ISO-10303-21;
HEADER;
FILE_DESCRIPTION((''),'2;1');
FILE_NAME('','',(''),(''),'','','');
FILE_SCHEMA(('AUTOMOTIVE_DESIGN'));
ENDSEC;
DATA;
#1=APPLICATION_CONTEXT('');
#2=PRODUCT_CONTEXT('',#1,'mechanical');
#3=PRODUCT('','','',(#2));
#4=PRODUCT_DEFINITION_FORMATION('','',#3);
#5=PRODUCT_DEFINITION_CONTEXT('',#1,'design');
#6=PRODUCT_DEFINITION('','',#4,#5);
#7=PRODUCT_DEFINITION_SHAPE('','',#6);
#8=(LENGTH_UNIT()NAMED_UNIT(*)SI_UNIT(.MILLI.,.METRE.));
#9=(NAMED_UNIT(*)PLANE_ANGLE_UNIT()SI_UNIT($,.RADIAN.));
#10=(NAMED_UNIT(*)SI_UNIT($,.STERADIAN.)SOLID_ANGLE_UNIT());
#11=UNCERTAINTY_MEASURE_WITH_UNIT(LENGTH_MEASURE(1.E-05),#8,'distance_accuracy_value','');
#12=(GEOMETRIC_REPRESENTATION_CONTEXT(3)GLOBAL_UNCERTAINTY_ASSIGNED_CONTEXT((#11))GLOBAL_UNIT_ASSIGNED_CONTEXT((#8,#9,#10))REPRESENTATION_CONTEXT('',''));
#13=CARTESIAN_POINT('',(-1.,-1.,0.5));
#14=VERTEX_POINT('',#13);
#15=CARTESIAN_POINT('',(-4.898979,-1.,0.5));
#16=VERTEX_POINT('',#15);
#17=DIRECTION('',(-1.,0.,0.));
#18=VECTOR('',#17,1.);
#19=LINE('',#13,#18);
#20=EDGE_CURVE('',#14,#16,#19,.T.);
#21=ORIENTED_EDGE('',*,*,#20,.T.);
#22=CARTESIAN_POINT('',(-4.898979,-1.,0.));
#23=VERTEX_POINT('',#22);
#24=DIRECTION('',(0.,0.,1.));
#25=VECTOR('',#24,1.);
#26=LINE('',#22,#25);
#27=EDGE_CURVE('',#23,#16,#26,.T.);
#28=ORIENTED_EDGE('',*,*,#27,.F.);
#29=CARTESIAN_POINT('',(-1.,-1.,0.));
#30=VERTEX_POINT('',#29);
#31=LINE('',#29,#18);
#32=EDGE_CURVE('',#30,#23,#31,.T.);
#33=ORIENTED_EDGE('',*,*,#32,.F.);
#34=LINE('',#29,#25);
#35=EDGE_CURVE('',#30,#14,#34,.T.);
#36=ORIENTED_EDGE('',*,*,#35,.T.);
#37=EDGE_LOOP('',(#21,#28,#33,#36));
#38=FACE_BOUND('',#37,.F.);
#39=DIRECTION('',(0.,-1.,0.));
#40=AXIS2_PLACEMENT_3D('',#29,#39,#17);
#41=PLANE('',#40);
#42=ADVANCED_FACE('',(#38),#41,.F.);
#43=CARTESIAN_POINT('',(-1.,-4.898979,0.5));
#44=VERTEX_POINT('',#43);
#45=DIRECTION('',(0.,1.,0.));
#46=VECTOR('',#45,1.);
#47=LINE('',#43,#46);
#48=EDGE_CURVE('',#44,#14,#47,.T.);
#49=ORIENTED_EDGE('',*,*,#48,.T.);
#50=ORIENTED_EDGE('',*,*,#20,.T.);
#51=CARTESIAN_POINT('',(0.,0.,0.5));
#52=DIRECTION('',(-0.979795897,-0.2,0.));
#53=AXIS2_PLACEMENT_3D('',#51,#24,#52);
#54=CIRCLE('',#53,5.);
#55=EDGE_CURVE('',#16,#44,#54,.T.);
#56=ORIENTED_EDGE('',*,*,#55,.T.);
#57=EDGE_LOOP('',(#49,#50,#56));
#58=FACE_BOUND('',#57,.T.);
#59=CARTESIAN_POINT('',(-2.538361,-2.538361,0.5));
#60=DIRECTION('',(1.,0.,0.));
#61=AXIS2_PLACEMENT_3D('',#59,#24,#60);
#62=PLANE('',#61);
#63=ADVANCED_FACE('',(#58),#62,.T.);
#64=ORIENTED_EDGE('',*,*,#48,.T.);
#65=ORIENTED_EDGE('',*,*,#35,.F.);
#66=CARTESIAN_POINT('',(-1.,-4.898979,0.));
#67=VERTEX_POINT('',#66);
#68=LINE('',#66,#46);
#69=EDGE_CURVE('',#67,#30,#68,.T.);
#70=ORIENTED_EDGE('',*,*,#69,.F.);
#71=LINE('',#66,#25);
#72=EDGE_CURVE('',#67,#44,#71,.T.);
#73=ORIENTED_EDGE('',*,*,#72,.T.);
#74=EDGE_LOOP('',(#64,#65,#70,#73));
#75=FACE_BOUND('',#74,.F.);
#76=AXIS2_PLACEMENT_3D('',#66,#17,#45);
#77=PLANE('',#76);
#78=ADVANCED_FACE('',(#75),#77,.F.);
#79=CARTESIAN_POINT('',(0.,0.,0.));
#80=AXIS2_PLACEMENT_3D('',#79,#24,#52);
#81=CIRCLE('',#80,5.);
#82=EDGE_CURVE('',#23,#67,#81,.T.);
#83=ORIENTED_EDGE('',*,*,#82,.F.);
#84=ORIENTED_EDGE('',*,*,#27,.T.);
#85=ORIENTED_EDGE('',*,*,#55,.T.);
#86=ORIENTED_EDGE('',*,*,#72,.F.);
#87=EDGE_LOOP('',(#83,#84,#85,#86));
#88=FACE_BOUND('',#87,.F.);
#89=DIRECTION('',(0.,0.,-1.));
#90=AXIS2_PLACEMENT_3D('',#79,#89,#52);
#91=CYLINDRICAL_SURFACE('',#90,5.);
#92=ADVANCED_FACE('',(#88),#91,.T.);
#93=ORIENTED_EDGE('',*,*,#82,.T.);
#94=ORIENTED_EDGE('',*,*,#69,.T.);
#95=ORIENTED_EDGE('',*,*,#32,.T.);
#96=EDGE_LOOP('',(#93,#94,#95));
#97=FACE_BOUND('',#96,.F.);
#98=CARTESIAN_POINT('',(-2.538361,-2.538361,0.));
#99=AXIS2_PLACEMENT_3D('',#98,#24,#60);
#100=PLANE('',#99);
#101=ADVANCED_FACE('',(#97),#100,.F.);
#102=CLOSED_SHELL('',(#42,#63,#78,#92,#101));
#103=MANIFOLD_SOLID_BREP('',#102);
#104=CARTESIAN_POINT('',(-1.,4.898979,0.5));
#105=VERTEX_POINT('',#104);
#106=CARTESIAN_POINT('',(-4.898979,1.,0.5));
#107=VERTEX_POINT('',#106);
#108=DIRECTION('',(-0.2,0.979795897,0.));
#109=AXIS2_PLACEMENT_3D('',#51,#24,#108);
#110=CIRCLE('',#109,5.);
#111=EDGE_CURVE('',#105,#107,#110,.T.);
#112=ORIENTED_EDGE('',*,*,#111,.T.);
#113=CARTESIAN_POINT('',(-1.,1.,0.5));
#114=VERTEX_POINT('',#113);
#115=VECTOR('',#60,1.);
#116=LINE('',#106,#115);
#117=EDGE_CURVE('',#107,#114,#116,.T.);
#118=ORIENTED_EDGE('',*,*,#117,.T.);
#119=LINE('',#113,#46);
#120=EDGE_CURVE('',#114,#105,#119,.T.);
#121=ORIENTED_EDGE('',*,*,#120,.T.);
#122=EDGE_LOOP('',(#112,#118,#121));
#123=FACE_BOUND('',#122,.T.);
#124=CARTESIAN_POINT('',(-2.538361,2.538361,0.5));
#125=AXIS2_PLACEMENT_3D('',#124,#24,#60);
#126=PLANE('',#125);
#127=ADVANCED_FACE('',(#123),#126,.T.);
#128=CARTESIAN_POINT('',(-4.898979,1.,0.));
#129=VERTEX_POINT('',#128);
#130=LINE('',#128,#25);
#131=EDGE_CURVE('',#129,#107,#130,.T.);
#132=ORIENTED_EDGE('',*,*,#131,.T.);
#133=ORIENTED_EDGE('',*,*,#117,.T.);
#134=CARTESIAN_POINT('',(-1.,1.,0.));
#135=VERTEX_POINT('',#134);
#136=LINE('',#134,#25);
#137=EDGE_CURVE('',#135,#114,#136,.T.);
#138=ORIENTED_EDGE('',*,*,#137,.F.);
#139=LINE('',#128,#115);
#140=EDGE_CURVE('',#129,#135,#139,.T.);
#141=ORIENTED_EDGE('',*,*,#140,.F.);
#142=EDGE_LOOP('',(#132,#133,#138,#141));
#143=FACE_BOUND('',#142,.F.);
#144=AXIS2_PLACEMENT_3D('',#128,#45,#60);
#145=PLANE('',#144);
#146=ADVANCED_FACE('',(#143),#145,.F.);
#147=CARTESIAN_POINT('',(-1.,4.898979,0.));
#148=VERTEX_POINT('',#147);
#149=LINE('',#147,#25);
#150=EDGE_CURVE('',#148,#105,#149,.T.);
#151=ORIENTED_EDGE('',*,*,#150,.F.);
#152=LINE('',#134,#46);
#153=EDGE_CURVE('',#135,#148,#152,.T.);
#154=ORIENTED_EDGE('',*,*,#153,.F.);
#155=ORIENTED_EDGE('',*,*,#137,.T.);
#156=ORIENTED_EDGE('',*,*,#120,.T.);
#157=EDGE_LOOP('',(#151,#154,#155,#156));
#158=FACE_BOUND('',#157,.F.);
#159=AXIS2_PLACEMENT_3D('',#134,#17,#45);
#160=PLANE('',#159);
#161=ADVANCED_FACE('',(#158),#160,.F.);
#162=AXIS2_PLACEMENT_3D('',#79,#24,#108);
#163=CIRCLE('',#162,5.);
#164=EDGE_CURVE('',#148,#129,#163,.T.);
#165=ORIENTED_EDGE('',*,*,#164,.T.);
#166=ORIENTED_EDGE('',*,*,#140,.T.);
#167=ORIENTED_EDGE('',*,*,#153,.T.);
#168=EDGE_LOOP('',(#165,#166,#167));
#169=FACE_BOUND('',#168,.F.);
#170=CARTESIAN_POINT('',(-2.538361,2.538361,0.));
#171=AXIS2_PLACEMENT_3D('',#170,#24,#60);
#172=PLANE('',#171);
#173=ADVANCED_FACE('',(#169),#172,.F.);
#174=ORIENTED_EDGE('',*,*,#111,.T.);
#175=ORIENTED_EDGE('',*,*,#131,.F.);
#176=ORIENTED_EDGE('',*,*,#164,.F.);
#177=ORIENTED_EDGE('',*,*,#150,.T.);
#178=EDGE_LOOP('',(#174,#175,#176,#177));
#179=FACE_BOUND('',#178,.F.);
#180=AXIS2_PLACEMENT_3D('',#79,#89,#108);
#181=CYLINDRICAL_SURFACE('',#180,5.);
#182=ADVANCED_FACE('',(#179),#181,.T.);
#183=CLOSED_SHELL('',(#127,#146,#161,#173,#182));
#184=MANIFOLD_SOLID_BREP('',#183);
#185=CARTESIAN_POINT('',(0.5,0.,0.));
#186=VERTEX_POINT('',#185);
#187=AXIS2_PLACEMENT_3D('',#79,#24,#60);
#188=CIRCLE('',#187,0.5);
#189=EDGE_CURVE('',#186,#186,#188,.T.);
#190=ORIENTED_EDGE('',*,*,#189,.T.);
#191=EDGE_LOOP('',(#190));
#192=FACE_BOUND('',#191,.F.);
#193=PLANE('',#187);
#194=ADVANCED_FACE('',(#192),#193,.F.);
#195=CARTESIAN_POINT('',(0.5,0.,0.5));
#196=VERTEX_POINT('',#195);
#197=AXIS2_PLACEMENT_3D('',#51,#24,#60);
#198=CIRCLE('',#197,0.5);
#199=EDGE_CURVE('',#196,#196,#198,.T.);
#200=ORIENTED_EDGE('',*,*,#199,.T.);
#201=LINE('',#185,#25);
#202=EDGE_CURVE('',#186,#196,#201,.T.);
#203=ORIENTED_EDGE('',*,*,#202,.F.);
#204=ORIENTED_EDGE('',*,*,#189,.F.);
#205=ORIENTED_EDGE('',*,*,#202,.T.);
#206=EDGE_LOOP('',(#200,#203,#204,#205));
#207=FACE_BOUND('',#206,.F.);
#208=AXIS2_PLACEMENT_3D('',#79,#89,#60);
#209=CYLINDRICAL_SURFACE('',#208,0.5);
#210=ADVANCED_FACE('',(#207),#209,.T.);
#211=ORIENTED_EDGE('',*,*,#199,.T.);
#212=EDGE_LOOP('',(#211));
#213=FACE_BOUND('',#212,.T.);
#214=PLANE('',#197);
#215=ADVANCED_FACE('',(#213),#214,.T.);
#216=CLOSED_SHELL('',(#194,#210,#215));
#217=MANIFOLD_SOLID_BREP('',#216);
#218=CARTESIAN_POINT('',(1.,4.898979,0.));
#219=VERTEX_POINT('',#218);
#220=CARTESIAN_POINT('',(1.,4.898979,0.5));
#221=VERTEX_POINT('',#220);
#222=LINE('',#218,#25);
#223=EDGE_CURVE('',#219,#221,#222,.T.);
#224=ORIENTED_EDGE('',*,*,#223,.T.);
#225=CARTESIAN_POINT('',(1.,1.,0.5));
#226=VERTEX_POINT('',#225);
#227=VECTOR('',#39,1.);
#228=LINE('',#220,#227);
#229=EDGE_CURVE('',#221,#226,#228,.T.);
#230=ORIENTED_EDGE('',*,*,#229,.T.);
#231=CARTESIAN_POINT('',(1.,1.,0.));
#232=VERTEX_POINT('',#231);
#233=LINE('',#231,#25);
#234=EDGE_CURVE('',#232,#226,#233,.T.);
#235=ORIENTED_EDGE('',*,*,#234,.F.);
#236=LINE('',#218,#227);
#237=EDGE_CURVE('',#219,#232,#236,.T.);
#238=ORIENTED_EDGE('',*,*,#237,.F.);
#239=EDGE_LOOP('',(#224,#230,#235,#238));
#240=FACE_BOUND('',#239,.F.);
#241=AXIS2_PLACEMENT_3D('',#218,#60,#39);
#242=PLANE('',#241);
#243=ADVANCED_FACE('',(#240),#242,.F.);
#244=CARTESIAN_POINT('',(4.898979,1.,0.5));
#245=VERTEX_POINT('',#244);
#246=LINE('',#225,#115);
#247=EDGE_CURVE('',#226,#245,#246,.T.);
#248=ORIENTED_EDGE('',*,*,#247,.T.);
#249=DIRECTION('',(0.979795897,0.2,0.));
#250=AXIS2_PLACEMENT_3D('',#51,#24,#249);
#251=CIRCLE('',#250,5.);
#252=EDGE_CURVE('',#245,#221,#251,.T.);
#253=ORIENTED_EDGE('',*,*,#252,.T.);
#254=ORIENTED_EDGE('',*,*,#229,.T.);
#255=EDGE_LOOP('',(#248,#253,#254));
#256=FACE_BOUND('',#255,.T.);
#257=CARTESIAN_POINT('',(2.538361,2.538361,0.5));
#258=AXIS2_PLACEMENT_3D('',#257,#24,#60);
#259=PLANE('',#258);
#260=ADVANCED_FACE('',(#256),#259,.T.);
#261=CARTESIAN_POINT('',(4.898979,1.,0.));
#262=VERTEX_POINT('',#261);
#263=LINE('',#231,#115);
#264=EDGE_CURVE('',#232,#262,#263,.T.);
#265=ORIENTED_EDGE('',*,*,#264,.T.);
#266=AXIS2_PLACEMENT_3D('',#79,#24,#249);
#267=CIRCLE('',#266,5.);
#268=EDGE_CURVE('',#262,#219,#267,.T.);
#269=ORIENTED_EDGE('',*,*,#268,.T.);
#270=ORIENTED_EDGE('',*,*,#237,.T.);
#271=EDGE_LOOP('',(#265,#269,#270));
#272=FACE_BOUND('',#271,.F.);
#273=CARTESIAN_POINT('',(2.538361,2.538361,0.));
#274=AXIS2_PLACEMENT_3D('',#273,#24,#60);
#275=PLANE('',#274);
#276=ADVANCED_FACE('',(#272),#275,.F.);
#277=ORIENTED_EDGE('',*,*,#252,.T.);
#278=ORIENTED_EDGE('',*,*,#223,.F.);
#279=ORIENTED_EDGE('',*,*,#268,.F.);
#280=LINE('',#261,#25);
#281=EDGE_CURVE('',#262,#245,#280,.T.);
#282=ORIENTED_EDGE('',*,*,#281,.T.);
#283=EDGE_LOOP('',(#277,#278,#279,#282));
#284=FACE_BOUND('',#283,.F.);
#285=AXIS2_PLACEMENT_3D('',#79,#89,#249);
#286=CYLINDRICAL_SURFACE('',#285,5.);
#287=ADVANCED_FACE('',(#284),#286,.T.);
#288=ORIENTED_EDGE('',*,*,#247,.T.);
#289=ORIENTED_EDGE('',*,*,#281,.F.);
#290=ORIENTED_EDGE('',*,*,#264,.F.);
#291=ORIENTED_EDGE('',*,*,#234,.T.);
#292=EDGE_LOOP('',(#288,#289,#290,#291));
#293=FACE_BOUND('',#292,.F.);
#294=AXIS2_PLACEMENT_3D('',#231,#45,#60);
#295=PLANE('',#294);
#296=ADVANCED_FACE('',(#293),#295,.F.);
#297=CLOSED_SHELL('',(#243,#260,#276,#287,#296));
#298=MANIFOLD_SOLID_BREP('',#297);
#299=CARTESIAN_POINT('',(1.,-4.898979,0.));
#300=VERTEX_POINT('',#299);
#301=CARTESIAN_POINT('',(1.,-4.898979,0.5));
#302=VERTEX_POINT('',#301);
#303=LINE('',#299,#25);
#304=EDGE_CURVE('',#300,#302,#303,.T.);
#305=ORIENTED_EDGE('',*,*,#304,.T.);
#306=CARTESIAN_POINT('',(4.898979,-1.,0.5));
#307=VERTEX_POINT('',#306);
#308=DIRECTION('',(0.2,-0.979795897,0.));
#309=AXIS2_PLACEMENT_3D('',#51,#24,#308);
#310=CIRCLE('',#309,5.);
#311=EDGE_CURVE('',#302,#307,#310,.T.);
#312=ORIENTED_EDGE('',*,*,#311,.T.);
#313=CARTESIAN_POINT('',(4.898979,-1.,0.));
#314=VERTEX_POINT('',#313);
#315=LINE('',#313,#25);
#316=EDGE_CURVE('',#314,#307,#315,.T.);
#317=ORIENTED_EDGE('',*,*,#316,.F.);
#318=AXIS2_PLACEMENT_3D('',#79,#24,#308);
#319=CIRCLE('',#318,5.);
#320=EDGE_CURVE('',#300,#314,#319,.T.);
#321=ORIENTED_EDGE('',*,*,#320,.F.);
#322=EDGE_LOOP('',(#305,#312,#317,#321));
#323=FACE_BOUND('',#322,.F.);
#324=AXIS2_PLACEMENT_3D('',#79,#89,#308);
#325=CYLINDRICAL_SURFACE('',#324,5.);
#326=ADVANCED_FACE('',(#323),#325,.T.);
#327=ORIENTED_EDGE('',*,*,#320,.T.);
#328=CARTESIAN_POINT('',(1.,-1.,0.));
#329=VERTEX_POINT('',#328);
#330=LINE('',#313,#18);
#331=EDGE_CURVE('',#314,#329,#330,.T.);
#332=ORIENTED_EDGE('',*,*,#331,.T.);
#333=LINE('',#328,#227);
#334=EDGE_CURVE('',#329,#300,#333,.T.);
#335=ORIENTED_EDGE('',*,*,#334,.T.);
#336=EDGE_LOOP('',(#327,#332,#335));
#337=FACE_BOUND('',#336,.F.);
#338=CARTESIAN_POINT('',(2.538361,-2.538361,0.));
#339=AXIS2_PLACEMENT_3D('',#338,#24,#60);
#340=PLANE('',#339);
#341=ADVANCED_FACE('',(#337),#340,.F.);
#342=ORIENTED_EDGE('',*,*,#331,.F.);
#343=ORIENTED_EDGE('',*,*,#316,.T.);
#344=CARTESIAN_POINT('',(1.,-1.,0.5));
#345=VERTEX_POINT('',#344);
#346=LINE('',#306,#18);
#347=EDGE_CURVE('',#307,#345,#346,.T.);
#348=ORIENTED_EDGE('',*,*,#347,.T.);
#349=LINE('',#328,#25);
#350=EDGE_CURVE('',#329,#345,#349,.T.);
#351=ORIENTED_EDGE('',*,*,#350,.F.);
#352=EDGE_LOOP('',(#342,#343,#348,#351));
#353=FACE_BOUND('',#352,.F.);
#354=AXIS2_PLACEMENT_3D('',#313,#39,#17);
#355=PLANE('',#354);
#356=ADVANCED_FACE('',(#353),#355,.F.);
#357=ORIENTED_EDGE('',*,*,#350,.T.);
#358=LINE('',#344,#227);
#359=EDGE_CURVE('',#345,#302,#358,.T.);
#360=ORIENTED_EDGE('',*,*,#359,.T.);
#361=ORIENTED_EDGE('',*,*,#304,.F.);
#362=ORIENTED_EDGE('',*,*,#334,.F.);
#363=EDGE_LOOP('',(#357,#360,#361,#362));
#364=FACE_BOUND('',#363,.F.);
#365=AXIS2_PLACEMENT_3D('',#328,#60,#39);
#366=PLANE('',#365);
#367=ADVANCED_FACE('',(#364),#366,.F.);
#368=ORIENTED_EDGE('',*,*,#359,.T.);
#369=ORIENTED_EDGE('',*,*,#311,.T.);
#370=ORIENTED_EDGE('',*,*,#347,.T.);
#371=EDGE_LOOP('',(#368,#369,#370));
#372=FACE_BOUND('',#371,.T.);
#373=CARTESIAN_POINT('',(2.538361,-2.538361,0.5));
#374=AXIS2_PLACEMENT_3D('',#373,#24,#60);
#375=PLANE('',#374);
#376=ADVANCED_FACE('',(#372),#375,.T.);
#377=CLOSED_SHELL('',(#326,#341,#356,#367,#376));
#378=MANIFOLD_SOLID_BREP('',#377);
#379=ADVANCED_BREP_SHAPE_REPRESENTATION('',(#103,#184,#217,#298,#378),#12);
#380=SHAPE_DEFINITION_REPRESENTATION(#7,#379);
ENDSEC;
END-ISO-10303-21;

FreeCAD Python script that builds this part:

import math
import FreeCAD as App
import Part
import Sketcher
Q = App.Units.Quantity

doc = App.newDocument("Part")
body = doc.addObject("PartDesign::Body", "Body")

sketch1 = body.newObject("Sketcher::SketchObject", "Sketch")
sketch1.AttachmentSupport = (doc.getObject("XY_Plane"), [""])
sketch1.MapMode = "FlatFace"
sketch1.addGeometry(Part.Circle(App.Vector(0, 0, 0), App.Vector(0, 0, 1), 0.5), False)
sketch1.addConstraint(Sketcher.Constraint("Coincident", 0, 3, -1, 1))
sketch1.addConstraint(Sketcher.Constraint("Diameter", 0, Q("1 mm")))
pad1 = body.newObject("PartDesign::Pad", "Pad")
pad1.Profile = sketch1
pad1.Length = 0.5
body2 = doc.addObject("PartDesign::Body", "Body001")

sketch2 = body2.newObject("Sketcher::SketchObject", "Sketch001")
sketch2.AttachmentSupport = (doc.getObject("XY_Plane001"), [""])
sketch2.MapMode = "FlatFace"
sketch2.addGeometry(Part.LineSegment(App.Vector(-1, 1, 0), App.Vector(-1, 4.9, 0)), False)
sketch2.addGeometry(Part.ArcOfCircle(Part.Circle(App.Vector(0, 0, 0), App.Vector(0, 0, 1), 5), math.radians(102), math.radians(168)), False)
sketch2.addGeometry(Part.LineSegment(App.Vector(-4.9, 1, 0), App.Vector(-1, 1, 0)), False)
sketch2.addConstraint(Sketcher.Constraint("Coincident", 0, 2, 1, 1))
sketch2.addConstraint(Sketcher.Constraint("Coincident", 1, 2, 2, 1))
sketch2.addConstraint(Sketcher.Constraint("Coincident", 2, 2, 0, 1))
sketch2.addConstraint(Sketcher.Constraint("Vertical", 0))
sketch2.addConstraint(Sketcher.Constraint("Horizontal", 2))
sketch2.addConstraint(Sketcher.Constraint("Coincident", 1, 3, -1, 1))
sketch2.addConstraint(Sketcher.Constraint("Equal", 2, 0))
sketch2.addConstraint(Sketcher.Constraint("Radius", 1, Q("5 mm")))
sketch2.addConstraint(Sketcher.Constraint("DistanceX", 0, 2, -1, 1, Q("1 mm")))
pad2 = body2.newObject("PartDesign::Pad", "Pad001")
pad2.Profile = sketch2
pad2.Length = 0.5
body3 = doc.addObject("PartDesign::Body", "Body002")

sketch3 = body3.newObject("Sketcher::SketchObject", "Sketch002")
sketch3.AttachmentSupport = (doc.getObject("XY_Plane002"), [""])
sketch3.MapMode = "FlatFace"
sketch3.addGeometry(Part.LineSegment(App.Vector(1, 1, 0), App.Vector(4.9, 1, 0)), False)
sketch3.addGeometry(Part.ArcOfCircle(Part.Circle(App.Vector(0, 0, 0), App.Vector(0, 0, 1), 5), math.radians(12), math.radians(78)), False)
sketch3.addGeometry(Part.LineSegment(App.Vector(1, 4.9, 0), App.Vector(1, 1, 0)), False)
sketch3.addConstraint(Sketcher.Constraint("Coincident", 0, 2, 1, 1))
sketch3.addConstraint(Sketcher.Constraint("Coincident", 1, 2, 2, 1))
sketch3.addConstraint(Sketcher.Constraint("Coincident", 2, 2, 0, 1))
sketch3.addConstraint(Sketcher.Constraint("Horizontal", 0))
sketch3.addConstraint(Sketcher.Constraint("Vertical", 2))
sketch3.addConstraint(Sketcher.Constraint("Coincident", 1, 3, -1, 1))
sketch3.addConstraint(Sketcher.Constraint("Equal", 0, 2))
sketch3.addConstraint(Sketcher.Constraint("Radius", 1, Q("5 mm")))
sketch3.addConstraint(Sketcher.Constraint("DistanceY", -1, 1, 0, 2, Q("1 mm")))
pad3 = body3.newObject("PartDesign::Pad", "Pad002")
pad3.Profile = sketch3
pad3.Length = 0.5
body4 = doc.addObject("PartDesign::Body", "Body003")

sketch4 = body4.newObject("Sketcher::SketchObject", "Sketch003")
sketch4.AttachmentSupport = (doc.getObject("XY_Plane003"), [""])
sketch4.MapMode = "FlatFace"
sketch4.addGeometry(Part.ArcOfCircle(Part.Circle(App.Vector(0, 0, 0), App.Vector(0, 0, 1), 5), math.radians(-78), math.radians(-12)), False)
sketch4.addGeometry(Part.LineSegment(App.Vector(4.9, -1, 0), App.Vector(1, -1, 0)), False)
sketch4.addGeometry(Part.LineSegment(App.Vector(1, -1, 0), App.Vector(1, -4.9, 0)), False)
sketch4.addConstraint(Sketcher.Constraint("Coincident", 0, 2, 1, 1))
sketch4.addConstraint(Sketcher.Constraint("Coincident", 1, 2, 2, 1))
sketch4.addConstraint(Sketcher.Constraint("Coincident", 2, 2, 0, 1))
sketch4.addConstraint(Sketcher.Constraint("Horizontal", 1))
sketch4.addConstraint(Sketcher.Constraint("Vertical", 2))
sketch4.addConstraint(Sketcher.Constraint("Coincident", 0, 3, -1, 1))
sketch4.addConstraint(Sketcher.Constraint("Equal", 1, 2))
sketch4.addConstraint(Sketcher.Constraint("Radius", 0, Q("5 mm")))
sketch4.addConstraint(Sketcher.Constraint("DistanceY", 0, 2, -1, 1, Q("1 mm")))
pad4 = body4.newObject("PartDesign::Pad", "Pad003")
pad4.Profile = sketch4
pad4.Length = 0.5
body5 = doc.addObject("PartDesign::Body", "Body004")

sketch5 = body5.newObject("Sketcher::SketchObject", "Sketch004")
sketch5.AttachmentSupport = (doc.getObject("XY_Plane004"), [""])
sketch5.MapMode = "FlatFace"
sketch5.addGeometry(Part.ArcOfCircle(Part.Circle(App.Vector(0, 0, 0), App.Vector(0, 0, 1), 5), math.radians(-168), math.radians(-102)), False)
sketch5.addGeometry(Part.LineSegment(App.Vector(-1, -4.9, 0), App.Vector(-1, -1, 0)), False)
sketch5.addGeometry(Part.LineSegment(App.Vector(-1, -1, 0), App.Vector(-4.9, -1, 0)), False)
sketch5.addConstraint(Sketcher.Constraint("Coincident", 0, 2, 1, 1))
sketch5.addConstraint(Sketcher.Constraint("Coincident", 1, 2, 2, 1))
sketch5.addConstraint(Sketcher.Constraint("Coincident", 2, 2, 0, 1))
sketch5.addConstraint(Sketcher.Constraint("Vertical", 1))
sketch5.addConstraint(Sketcher.Constraint("Horizontal", 2))
sketch5.addConstraint(Sketcher.Constraint("Coincident", 0, 3, -1, 1))
sketch5.addConstraint(Sketcher.Constraint("Equal", 2, 1))
sketch5.addConstraint(Sketcher.Constraint("Radius", 0, Q("5 mm")))
sketch5.addConstraint(Sketcher.Constraint("DistanceX", 0, 2, -1, 1, Q("1 mm")))
pad5 = body5.newObject("PartDesign::Pad", "Pad004")
pad5.Profile = sketch5
pad5.Length = 0.5

doc.recompute()
